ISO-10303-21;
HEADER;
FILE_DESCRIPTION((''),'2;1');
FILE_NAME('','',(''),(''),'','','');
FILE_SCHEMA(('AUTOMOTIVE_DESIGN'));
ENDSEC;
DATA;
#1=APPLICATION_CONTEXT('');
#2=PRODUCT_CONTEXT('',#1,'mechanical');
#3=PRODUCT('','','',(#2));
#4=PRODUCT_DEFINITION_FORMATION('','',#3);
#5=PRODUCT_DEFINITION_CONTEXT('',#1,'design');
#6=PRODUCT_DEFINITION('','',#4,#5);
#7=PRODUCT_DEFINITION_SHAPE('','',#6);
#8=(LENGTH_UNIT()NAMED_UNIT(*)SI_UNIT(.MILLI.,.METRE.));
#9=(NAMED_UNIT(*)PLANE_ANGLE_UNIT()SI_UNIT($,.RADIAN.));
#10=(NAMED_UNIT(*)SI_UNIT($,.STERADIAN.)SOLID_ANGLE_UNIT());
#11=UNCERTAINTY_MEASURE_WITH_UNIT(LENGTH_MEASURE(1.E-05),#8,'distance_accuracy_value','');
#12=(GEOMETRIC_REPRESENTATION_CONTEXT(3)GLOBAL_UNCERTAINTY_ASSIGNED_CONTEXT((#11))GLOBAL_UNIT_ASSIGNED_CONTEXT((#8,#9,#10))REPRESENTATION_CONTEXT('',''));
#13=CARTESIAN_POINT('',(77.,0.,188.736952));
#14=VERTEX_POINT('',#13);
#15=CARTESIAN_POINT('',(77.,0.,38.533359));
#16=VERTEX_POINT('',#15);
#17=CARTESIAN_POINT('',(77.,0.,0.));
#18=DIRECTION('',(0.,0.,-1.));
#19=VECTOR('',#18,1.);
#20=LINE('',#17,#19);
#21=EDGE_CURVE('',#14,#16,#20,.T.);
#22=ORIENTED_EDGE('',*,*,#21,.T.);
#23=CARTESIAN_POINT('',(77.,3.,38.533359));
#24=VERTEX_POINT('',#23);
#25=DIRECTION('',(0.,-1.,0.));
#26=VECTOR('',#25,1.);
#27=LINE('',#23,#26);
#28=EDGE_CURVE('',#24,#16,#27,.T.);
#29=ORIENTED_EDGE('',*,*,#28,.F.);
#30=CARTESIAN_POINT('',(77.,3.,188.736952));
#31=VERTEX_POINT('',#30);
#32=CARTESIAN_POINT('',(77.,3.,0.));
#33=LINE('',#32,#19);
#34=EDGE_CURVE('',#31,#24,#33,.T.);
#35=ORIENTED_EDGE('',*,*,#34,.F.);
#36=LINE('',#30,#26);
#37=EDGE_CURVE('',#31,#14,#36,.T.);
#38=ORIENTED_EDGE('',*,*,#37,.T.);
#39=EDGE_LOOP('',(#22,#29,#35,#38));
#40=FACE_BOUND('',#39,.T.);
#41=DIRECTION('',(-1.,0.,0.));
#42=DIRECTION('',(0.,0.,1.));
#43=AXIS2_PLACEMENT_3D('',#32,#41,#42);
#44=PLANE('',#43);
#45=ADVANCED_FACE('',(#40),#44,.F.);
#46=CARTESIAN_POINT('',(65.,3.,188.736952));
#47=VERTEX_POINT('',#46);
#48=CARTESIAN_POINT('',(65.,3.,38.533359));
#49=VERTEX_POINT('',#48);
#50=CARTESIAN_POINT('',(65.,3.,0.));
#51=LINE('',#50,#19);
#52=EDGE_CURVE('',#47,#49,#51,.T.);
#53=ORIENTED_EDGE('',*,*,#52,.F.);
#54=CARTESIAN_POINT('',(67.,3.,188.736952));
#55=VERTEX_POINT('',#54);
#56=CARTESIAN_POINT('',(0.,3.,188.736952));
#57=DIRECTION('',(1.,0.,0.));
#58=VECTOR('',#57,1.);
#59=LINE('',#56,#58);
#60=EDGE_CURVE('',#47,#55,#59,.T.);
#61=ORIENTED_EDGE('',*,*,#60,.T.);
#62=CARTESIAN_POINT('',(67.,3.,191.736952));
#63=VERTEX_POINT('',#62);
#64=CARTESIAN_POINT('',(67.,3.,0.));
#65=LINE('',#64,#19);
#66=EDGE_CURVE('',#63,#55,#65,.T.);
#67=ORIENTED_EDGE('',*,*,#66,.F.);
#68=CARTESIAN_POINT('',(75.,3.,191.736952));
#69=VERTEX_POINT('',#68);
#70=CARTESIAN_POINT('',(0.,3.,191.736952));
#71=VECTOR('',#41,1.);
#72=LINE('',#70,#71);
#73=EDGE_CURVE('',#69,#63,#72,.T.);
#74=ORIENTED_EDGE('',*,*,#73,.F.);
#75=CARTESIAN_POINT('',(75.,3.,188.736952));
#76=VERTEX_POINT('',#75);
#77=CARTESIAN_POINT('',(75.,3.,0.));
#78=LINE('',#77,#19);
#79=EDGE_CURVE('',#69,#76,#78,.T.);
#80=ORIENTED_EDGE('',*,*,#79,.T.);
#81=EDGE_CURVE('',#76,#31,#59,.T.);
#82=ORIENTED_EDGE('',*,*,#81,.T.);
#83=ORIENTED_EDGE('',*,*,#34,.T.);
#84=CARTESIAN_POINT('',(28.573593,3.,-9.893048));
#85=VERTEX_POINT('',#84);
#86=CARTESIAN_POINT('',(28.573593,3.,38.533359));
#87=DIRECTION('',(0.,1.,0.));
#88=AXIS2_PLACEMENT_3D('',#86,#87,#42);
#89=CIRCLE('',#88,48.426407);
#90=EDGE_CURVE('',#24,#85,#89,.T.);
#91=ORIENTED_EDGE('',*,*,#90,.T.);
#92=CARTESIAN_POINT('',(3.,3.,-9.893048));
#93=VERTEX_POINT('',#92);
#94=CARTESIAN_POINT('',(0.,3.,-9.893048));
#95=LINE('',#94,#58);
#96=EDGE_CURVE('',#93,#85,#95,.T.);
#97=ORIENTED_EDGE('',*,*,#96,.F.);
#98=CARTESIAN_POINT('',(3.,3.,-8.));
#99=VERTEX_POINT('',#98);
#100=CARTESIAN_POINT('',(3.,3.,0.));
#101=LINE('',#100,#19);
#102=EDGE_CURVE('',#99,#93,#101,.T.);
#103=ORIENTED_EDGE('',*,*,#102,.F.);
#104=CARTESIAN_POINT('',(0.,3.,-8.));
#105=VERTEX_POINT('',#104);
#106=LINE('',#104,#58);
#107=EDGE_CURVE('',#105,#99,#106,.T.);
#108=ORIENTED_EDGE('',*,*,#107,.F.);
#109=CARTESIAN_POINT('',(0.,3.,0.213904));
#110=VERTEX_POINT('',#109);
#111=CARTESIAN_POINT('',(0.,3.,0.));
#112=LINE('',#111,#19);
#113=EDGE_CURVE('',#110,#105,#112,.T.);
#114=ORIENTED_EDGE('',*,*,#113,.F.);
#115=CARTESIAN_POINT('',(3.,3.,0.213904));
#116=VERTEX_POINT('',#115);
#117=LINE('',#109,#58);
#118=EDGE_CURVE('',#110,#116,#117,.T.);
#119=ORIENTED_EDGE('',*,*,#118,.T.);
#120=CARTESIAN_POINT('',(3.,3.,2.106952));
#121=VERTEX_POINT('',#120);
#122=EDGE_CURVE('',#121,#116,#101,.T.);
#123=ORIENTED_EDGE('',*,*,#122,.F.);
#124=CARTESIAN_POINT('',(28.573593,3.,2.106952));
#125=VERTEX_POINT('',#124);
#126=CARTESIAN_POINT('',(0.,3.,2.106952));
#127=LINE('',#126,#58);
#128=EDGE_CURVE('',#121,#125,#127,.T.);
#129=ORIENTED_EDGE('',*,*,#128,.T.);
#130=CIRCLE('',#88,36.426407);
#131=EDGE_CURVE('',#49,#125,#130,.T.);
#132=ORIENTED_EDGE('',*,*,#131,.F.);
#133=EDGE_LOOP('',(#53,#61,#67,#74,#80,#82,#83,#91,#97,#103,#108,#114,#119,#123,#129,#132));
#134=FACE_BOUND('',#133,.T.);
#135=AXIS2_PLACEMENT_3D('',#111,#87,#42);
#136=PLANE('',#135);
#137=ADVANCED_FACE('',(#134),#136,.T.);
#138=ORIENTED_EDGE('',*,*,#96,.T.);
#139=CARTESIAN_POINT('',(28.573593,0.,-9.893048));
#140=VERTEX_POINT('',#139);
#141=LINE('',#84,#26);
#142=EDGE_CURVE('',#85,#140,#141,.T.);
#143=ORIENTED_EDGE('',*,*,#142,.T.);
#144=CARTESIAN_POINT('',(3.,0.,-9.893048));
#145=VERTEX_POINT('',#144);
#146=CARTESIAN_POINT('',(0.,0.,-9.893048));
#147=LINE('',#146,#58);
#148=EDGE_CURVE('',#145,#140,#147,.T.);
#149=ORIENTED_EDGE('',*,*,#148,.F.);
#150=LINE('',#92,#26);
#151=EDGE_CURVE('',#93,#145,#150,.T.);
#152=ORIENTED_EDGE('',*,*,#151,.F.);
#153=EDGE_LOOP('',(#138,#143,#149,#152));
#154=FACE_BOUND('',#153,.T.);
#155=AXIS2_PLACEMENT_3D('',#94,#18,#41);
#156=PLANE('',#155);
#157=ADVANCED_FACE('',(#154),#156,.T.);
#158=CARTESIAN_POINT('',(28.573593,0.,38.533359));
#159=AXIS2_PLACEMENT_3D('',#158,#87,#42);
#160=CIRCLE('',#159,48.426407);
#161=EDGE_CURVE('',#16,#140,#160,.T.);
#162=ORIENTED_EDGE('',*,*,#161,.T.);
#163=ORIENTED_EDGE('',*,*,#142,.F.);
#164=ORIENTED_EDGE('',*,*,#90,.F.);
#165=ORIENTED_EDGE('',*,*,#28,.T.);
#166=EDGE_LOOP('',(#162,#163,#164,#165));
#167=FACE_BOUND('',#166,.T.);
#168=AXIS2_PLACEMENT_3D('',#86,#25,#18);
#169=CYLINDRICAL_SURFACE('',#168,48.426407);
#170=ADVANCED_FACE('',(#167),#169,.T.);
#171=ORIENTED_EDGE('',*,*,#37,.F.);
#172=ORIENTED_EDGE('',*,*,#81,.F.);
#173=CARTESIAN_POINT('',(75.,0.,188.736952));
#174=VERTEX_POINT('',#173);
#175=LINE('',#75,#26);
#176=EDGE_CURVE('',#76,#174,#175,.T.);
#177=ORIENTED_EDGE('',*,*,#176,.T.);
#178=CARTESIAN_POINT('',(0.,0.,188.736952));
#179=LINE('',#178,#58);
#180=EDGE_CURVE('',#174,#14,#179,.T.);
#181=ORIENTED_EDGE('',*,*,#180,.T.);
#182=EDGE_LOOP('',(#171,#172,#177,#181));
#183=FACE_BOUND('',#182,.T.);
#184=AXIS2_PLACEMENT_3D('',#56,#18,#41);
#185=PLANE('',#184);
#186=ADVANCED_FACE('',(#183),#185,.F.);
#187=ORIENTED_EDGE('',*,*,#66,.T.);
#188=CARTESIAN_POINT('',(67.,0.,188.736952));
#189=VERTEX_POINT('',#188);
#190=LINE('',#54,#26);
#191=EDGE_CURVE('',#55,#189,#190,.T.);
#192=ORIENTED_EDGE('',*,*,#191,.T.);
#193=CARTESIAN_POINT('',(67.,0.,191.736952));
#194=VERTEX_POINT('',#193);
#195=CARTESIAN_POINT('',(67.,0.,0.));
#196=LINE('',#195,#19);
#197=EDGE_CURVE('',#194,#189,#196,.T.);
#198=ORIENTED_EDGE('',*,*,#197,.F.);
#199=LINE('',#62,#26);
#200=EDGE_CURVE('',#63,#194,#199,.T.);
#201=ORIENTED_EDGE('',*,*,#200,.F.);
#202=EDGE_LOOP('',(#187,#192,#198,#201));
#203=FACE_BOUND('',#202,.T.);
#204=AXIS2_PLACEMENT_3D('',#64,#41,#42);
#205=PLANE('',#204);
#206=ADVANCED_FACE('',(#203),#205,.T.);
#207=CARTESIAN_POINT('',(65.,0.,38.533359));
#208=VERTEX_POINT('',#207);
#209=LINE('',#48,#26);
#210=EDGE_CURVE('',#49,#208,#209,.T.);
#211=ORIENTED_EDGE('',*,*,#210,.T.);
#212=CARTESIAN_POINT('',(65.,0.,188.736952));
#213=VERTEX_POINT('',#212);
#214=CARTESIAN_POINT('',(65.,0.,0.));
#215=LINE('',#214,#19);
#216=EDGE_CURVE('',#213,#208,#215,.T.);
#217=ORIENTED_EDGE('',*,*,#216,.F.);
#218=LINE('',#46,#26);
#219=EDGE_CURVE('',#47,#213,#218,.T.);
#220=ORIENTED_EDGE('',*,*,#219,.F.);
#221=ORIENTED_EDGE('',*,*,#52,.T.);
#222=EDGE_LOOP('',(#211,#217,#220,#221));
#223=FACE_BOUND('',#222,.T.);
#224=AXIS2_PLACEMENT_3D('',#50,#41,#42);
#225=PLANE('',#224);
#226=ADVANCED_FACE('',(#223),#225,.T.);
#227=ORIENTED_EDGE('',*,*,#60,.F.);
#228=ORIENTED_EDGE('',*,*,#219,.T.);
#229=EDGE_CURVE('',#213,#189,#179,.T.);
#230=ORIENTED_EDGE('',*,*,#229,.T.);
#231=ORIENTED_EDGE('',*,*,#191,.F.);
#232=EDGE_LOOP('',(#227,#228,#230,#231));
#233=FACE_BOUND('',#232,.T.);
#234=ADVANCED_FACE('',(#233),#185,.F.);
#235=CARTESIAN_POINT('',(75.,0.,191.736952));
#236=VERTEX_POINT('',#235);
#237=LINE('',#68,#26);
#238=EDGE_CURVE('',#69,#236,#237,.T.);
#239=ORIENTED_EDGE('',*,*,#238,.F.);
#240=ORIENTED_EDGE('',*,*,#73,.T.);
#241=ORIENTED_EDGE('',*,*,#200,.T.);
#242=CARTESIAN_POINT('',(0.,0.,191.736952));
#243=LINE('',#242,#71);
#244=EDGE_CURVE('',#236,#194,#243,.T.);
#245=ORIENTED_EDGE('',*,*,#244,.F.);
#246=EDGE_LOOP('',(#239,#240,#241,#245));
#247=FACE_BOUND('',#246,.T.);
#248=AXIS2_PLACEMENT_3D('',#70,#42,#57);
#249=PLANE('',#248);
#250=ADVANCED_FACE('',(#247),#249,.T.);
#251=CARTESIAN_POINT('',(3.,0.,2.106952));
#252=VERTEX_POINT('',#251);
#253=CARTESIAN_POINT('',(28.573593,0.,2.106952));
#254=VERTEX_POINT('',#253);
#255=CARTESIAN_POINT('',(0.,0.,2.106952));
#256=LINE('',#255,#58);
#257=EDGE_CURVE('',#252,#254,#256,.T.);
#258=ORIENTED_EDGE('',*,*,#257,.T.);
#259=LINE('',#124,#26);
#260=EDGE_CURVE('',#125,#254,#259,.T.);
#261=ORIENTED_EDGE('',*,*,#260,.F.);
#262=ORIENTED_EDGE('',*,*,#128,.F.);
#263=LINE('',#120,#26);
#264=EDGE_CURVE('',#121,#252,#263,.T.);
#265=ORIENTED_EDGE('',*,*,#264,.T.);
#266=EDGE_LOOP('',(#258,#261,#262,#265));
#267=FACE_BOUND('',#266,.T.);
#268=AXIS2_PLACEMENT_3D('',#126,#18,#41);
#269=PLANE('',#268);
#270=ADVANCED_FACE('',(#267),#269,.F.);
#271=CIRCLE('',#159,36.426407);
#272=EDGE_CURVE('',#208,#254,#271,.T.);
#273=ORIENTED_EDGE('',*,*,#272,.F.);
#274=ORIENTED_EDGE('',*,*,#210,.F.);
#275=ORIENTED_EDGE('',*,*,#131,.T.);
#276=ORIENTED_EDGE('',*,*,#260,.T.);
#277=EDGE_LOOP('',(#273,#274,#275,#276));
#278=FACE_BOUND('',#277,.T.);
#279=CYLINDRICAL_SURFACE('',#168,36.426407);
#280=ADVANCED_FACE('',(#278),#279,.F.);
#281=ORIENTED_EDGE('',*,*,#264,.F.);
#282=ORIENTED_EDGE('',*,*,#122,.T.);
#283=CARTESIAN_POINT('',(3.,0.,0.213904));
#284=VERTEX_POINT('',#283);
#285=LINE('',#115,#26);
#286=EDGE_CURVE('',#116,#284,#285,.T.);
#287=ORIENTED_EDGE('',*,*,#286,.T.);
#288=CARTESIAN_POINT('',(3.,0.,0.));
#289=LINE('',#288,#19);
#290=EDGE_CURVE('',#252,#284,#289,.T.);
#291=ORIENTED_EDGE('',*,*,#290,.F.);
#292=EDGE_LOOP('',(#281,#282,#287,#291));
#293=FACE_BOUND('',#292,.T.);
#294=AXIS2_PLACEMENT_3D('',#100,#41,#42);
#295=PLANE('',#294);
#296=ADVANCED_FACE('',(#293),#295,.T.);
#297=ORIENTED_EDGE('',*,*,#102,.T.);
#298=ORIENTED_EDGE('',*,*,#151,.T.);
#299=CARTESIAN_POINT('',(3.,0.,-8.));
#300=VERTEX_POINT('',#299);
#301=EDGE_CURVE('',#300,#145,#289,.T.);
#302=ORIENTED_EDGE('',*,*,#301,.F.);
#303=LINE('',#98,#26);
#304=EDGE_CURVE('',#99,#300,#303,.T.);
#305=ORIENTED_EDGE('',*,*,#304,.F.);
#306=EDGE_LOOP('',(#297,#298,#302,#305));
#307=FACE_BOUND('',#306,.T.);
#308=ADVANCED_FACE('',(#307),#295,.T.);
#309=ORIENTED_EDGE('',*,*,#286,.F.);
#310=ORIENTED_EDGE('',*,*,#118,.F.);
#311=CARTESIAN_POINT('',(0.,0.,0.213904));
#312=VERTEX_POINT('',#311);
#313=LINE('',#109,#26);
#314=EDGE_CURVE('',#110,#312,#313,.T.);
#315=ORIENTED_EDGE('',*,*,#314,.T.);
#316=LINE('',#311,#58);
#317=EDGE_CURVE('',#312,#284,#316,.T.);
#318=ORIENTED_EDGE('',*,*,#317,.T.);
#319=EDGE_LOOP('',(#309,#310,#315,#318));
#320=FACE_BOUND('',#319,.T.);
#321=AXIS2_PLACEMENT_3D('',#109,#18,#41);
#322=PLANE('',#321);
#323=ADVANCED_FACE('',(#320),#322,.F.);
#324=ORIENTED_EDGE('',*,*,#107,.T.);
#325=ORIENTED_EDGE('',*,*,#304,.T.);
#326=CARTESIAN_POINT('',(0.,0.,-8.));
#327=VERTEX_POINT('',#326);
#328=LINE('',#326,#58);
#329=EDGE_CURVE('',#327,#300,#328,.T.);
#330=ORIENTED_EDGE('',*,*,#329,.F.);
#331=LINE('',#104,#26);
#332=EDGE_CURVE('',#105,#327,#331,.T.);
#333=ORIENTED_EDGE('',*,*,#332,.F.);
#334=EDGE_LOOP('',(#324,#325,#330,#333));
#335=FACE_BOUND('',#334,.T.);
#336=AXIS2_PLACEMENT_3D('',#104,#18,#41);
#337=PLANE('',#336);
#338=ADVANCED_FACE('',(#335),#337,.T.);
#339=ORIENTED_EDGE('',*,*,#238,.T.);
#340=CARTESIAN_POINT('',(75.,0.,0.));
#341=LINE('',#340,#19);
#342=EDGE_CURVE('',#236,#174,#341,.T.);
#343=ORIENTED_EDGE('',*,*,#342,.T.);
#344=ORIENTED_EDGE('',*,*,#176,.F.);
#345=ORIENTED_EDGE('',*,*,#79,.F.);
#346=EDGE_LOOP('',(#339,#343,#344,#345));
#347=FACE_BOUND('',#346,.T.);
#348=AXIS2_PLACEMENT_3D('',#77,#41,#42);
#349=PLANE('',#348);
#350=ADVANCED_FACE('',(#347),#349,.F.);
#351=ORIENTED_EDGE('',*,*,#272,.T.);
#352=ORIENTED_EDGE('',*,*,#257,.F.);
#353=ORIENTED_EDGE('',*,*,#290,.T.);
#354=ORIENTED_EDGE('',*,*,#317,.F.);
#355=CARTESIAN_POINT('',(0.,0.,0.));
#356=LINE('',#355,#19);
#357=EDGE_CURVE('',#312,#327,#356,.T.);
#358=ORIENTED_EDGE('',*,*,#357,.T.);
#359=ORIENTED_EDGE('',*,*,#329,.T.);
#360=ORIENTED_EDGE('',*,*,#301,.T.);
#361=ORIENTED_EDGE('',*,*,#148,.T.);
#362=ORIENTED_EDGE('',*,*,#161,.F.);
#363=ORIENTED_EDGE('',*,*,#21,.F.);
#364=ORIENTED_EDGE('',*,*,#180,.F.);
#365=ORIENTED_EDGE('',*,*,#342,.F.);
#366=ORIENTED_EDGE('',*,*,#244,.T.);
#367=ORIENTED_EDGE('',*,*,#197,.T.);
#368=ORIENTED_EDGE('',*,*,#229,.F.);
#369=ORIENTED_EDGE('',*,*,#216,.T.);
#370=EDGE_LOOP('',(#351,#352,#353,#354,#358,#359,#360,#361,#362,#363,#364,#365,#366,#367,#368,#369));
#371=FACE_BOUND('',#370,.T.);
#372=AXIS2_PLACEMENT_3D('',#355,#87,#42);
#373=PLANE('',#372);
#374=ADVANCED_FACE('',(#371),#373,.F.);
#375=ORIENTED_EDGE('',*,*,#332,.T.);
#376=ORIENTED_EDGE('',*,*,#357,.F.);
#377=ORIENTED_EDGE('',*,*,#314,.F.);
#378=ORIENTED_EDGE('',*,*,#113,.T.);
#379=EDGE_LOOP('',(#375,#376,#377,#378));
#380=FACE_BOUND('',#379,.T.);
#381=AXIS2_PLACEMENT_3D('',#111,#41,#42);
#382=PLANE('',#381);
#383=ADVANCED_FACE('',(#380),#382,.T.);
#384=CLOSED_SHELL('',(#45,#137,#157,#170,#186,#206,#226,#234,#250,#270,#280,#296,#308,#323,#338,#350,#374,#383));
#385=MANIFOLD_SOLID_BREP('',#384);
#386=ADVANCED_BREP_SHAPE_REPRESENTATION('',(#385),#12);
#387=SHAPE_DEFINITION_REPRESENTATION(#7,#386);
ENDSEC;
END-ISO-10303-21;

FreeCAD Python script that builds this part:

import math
import FreeCAD as App
import Part
import Sketcher
from FreeCAD import Vector
Q = App.Units.Quantity

doc = App.newDocument("Part")
body = doc.addObject("PartDesign::Body", "Body")

# Sketch on XZ plane
sketch1 = body.newObject("Sketcher::SketchObject", "Sketch")
sketch1.AttachmentSupport = (doc.getObject("XZ_Plane"), [""])
sketch1.MapMode = "FlatFace"
sketch1.addGeometry(Part.LineSegment(Vector(0, 0.2, 0), Vector(3, 0.2, 0)), False)
sketch1.addGeometry(Part.LineSegment(Vector(3, 0.2, 0), Vector(3, 2.1, 0)), False)
sketch1.addGeometry(Part.LineSegment(Vector(3, 2.1, 0), Vector(28.6, 2.1, 0)), False)
sketch1.addGeometry(Part.ArcOfCircle(Part.Circle(Vector(28.6, 38.5, 0), Vector(0, 0, 1), 36.4), math.radians(-90), math.radians(0)), False)
sketch1.addGeometry(Part.LineSegment(Vector(65, 38.5, 0), Vector(65, 188.7, 0)), False)
sketch1.addGeometry(Part.LineSegment(Vector(65, 188.7, 0), Vector(67, 188.7, 0)), False)
sketch1.addGeometry(Part.LineSegment(Vector(67, 188.7, 0), Vector(67, 191.7, 0)), False)
sketch1.addGeometry(Part.LineSegment(Vector(67, 191.7, 0), Vector(75, 191.7, 0)), False)
sketch1.addGeometry(Part.LineSegment(Vector(75, 191.7, 0), Vector(75, 188.7, 0)), False)
sketch1.addGeometry(Part.LineSegment(Vector(75, 188.7, 0), Vector(77, 188.7, 0)), False)
sketch1.addGeometry(Part.LineSegment(Vector(77, 188.7, 0), Vector(77, 38.5, 0)), False)
sketch1.addGeometry(Part.ArcOfCircle(Part.Circle(Vector(28.6, 38.5, 0), Vector(0, 0, 1), 48.4), math.radians(-90), math.radians(0)), False)
sketch1.addGeometry(Part.LineSegment(Vector(28.6, -9.9, 0), Vector(3, -9.9, 0)), False)
sketch1.addGeometry(Part.LineSegment(Vector(3, -9.9, 0), Vector(3, -8, 0)), False)
sketch1.addGeometry(Part.LineSegment(Vector(3, -8, 0), Vector(0, -8, 0)), False)
sketch1.addGeometry(Part.LineSegment(Vector(0, -8, 0), Vector(0, 0.2, 0)), False)
sketch1.addConstraint(Sketcher.Constraint("Coincident", 0, 2, 1, 1))
sketch1.addConstraint(Sketcher.Constraint("Coincident", 1, 2, 2, 1))
sketch1.addConstraint(Sketcher.Constraint("Tangent", 2, 2, 3, 1))
sketch1.addConstraint(Sketcher.Constraint("Tangent", 3, 2, 4, 1))
sketch1.addConstraint(Sketcher.Constraint("Coincident", 4, 2, 5, 1))
sketch1.addConstraint(Sketcher.Constraint("Coincident", 5, 2, 6, 1))
sketch1.addConstraint(Sketcher.Constraint("Coincident", 6, 2, 7, 1))
sketch1.addConstraint(Sketcher.Constraint("Coincident", 7, 2, 8, 1))
sketch1.addConstraint(Sketcher.Constraint("Coincident", 8, 2, 9, 1))
sketch1.addConstraint(Sketcher.Constraint("Coincident", 9, 2, 10, 1))
sketch1.addConstraint(Sketcher.Constraint("Tangent", 10, 2, 11, 2))
sketch1.addConstraint(Sketcher.Constraint("Tangent", 11, 1, 12, 1))
sketch1.addConstraint(Sketcher.Constraint("Coincident", 12, 2, 13, 1))
sketch1.addConstraint(Sketcher.Constraint("Coincident", 13, 2, 14, 1))
sketch1.addConstraint(Sketcher.Constraint("Coincident", 14, 2, 15, 1))
sketch1.addConstraint(Sketcher.Constraint("Coincident", 15, 2, 0, 1))
sketch1.addConstraint(Sketcher.Constraint("Horizontal", 0))
sketch1.addConstraint(Sketcher.Constraint("Vertical", 1))
sketch1.addConstraint(Sketcher.Constraint("Horizontal", 2))
sketch1.addConstraint(Sketcher.Constraint("Vertical", 4))
sketch1.addConstraint(Sketcher.Constraint("Horizontal", 5))
sketch1.addConstraint(Sketcher.Constraint("Vertical", 6))
sketch1.addConstraint(Sketcher.Constraint("Horizontal", 7))
sketch1.addConstraint(Sketcher.Constraint("Vertical", 8))
sketch1.addConstraint(Sketcher.Constraint("Horizontal", 9))
sketch1.addConstraint(Sketcher.Constraint("Vertical", 10))
sketch1.addConstraint(Sketcher.Constraint("Horizontal", 12))
sketch1.addConstraint(Sketcher.Constraint("Vertical", 13))
sketch1.addConstraint(Sketcher.Constraint("Horizontal", 14))
sketch1.addConstraint(Sketcher.Constraint("Vertical", 15))
sketch1.addConstraint(Sketcher.Constraint("Coincident", 11, 3, 3, 3))
sketch1.addConstraint(Sketcher.Constraint("PointOnObject", 14, 2, -2))
sketch1.addConstraint(Sketcher.Constraint("Horizontal", 5, 2, 8, 2))
sketch1.addConstraint(Sketcher.Constraint("Vertical", 1, 2, 12, 2))
sketch1.addConstraint(Sketcher.Constraint("Equal", 5, 9))
sketch1.addConstraint(Sketcher.Constraint("Equal", 14, 6))
sketch1.addConstraint(Sketcher.Constraint("Equal", 1, 13))
sketch1.addConstraint(Sketcher.Constraint("DistanceX", 0, 1, 0, 2, Q("3 mm")))
sketch1.addConstraint(Sketcher.Constraint("DistanceX", 5, 1, 5, 2, Q("2 mm")))
sketch1.addConstraint(Sketcher.Constraint("DistanceX", 7, 1, 7, 2, Q("8 mm")))
sketch1.addConstraint(Sketcher.Constraint("DistanceX", -1, 1, 3, 2, Q("65 mm")))
sketch1.addConstraint(Sketcher.Constraint("DistanceY", 13, 2, -1, 1, Q("8 mm")))
sketch1.addConstraint(Sketcher.Constraint("DistanceY", 2, 2, 4, 2, Q("186.63 mm")))
sketch1.addConstraint(Sketcher.Constraint("Radius", 3, Q("36.426407 mm")))
sketch1.addConstraint(Sketcher.Constraint("DistanceY", 1, 1, 1, 2, Q("1.893048 mm")))
pad1 = body.newObject("PartDesign::Pad", "Pad")
pad1.Profile = sketch1
pad1.Length = 3
pad1.Reversed = True

doc.recompute()
